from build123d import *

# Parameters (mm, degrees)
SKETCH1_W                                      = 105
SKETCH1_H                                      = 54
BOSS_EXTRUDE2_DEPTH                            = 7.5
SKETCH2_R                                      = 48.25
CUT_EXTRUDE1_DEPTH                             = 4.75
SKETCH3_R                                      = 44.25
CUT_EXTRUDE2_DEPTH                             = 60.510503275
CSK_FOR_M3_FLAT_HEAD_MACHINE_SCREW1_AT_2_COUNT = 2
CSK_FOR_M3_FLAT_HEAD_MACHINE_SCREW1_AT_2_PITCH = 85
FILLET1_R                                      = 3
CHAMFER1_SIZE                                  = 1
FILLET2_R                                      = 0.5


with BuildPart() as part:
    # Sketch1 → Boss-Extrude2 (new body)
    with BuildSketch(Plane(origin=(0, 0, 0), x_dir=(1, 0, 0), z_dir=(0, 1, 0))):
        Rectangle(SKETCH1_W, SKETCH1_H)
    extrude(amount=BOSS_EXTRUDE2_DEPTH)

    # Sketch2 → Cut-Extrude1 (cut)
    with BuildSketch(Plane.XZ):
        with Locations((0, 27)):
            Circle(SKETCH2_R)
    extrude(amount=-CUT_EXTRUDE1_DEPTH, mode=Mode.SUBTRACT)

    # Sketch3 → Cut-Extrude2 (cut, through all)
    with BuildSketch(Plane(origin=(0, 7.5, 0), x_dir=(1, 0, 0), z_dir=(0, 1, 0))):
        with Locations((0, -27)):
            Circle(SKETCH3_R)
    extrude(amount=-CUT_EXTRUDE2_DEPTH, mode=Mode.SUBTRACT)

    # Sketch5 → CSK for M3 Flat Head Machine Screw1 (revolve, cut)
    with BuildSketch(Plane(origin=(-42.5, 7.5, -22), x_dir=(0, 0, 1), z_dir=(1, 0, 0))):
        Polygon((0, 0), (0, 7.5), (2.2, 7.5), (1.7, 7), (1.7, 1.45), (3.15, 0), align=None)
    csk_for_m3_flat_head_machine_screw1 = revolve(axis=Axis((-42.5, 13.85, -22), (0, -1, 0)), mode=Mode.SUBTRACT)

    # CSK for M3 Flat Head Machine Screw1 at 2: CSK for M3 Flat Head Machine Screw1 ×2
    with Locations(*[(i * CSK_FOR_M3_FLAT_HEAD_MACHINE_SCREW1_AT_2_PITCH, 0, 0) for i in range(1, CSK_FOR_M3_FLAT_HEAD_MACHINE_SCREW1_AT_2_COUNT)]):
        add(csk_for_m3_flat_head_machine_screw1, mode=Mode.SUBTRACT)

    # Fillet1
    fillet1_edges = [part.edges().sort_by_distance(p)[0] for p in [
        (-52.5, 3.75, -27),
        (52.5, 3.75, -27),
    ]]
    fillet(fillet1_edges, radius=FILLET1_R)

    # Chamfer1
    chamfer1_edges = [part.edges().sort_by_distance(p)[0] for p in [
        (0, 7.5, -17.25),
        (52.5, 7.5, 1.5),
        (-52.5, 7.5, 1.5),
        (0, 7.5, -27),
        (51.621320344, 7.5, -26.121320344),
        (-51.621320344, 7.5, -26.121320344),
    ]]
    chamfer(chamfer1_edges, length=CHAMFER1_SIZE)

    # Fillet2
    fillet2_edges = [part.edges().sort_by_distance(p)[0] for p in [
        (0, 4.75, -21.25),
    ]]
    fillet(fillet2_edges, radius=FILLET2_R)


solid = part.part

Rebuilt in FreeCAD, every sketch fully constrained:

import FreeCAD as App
import Part
import Sketcher
Q = App.Units.Quantity


def edges_at(feature, points):
    """Names of the edges that pass closest to the given points."""
    edges = feature.Shape.Edges
    near = lambda p: min(range(len(edges)), key=lambda i: edges[i].distToShape(Part.Vertex(*p))[0])
    return sorted({f"Edge{near(p) + 1}" for p in points})

doc = App.newDocument("Part")
body = doc.addObject("PartDesign::Body", "Body")

sketch1 = body.newObject("Sketcher::SketchObject", "Sketch")
sketch1.AttachmentSupport = (doc.getObject("XZ_Plane"), [""])
sketch1.MapMode = "FlatFace"
sketch1.addGeometry(Part.LineSegment(App.Vector(-52, -27, 0), App.Vector(-52, 27, 0)), False)
sketch1.addGeometry(Part.LineSegment(App.Vector(-52, 27, 0), App.Vector(52, 27, 0)), False)
sketch1.addGeometry(Part.LineSegment(App.Vector(52, 27, 0), App.Vector(52, -27, 0)), False)
sketch1.addGeometry(Part.LineSegment(App.Vector(52, -27, 0), App.Vector(-52, -27, 0)), False)
sketch1.addConstraint(Sketcher.Constraint("Coincident", 0, 2, 1, 1))
sketch1.addConstraint(Sketcher.Constraint("Coincident", 1, 2, 2, 1))
sketch1.addConstraint(Sketcher.Constraint("Coincident", 2, 2, 3, 1))
sketch1.addConstraint(Sketcher.Constraint("Coincident", 3, 2, 0, 1))
sketch1.addConstraint(Sketcher.Constraint("Vertical", 0))
sketch1.addConstraint(Sketcher.Constraint("Horizontal", 1))
sketch1.addConstraint(Sketcher.Constraint("Vertical", 2))
sketch1.addConstraint(Sketcher.Constraint("Horizontal", 3))
sketch1.addConstraint(Sketcher.Constraint("Symmetric", 0, 2, 2, 2, -1, 1))
sketch1.addConstraint(Sketcher.Constraint("DistanceX", 1, 1, 1, 2, Q("105 mm")))
sketch1.addConstraint(Sketcher.Constraint("DistanceY", 0, 1, 0, 2, Q("54 mm")))
pad1 = body.newObject("PartDesign::Pad", "Pad")
pad1.Profile = sketch1
pad1.Length = 7.5
pad1.Reversed = True

sketch2 = body.newObject("Sketcher::SketchObject", "Sketch001")
sketch2.AttachmentSupport = (doc.getObject("XZ_Plane"), [""])
sketch2.MapMode = "FlatFace"
sketch2.addGeometry(Part.Circle(App.Vector(0, 27, 0), App.Vector(0, 0, 1), 48), False)
sketch2.addConstraint(Sketcher.Constraint("PointOnObject", 0, 3, -2))
sketch2.addConstraint(Sketcher.Constraint("Diameter", 0, Q("96.5 mm")))
sketch2.addConstraint(Sketcher.Constraint("DistanceY", -1, 1, 0, 3, Q("27 mm")))
pocket1 = body.newObject("PartDesign::Pocket", "Pocket")
pocket1.Profile = sketch2
pocket1.Length = 4.75

sketch3 = body.newObject("Sketcher::SketchObject", "Sketch002")
sketch3.AttachmentSupport = (doc.getObject("XZ_Plane"), [""])
sketch3.MapMode = "FlatFace"
sketch3.AttachmentOffset = App.Placement(App.Vector(0, 0, -7.5), App.Rotation())
sketch3.addGeometry(Part.Circle(App.Vector(0, 27, 0), App.Vector(0, 0, 1), 44), False)
sketch3.addConstraint(Sketcher.Constraint("PointOnObject", 0, 3, -2))
sketch3.addConstraint(Sketcher.Constraint("Diameter", 0, Q("88.5 mm")))
sketch3.addConstraint(Sketcher.Constraint("DistanceY", -1, 1, 0, 3, Q("27 mm")))
pocket2 = body.newObject("PartDesign::Pocket", "Pocket001")
pocket2.Profile = sketch3
pocket2.Type = "ThroughAll"
pocket2.Reversed = True

sketch4 = body.newObject("Sketcher::SketchObject", "Sketch003")
sketch4.AttachmentSupport = (doc.getObject("YZ_Plane"), [""])
sketch4.MapMode = "FlatFace"
sketch4.AttachmentOffset = App.Placement(App.Vector(0, 0, -42.5), App.Rotation())
sketch4.addGeometry(Part.LineSegment(App.Vector(0, -22, 0), App.Vector(7.5, -22, 0)), False)
sketch4.addGeometry(Part.LineSegment(App.Vector(7.5, -22, 0), App.Vector(7.5, -18.9, 0)), False)
sketch4.addGeometry(Part.LineSegment(App.Vector(7.5, -18.9, 0), App.Vector(6, -20.3, 0)), False)
sketch4.addGeometry(Part.LineSegment(App.Vector(6, -20.3, 0), App.Vector(0.5, -20.3, 0)), False)
sketch4.addGeometry(Part.LineSegment(App.Vector(0.5, -20.3, 0), App.Vector(0, -19.8, 0)), False)
sketch4.addGeometry(Part.LineSegment(App.Vector(0, -19.8, 0), App.Vector(0, -22, 0)), False)
sketch4.addGeometry(Part.LineSegment(App.Vector(7.5, -22, 0), App.Vector(0, -22, 0)), True)
sketch4.addConstraint(Sketcher.Constraint("Coincident", 0, 2, 1, 1))
sketch4.addConstraint(Sketcher.Constraint("Coincident", 1, 2, 2, 1))
sketch4.addConstraint(Sketcher.Constraint("Coincident", 2, 2, 3, 1))
sketch4.addConstraint(Sketcher.Constraint("Coincident", 3, 2, 4, 1))
sketch4.addConstraint(Sketcher.Constraint("Coincident", 4, 2, 5, 1))
sketch4.addConstraint(Sketcher.Constraint("Coincident", 5, 2, 0, 1))
sketch4.addConstraint(Sketcher.Constraint("Horizontal", 0))
sketch4.addConstraint(Sketcher.Constraint("Vertical", 1))
sketch4.addConstraint(Sketcher.Constraint("Horizontal", 3))
sketch4.addConstraint(Sketcher.Constraint("Vertical", 5))
sketch4.addConstraint(Sketcher.Constraint("Horizontal", 6))
sketch4.addConstraint(Sketcher.Constraint("Coincident", 6, 1, 0, 2))
sketch4.addConstraint(Sketcher.Constraint("PointOnObject", 4, 2, -2))
sketch4.addConstraint(Sketcher.Constraint("PointOnObject", 6, 2, -2))
sketch4.addConstraint(Sketcher.Constraint("Perpendicular", 2, 4))
sketch4.addConstraint(Sketcher.Constraint("Angle", 2, Q("-135 deg")))
sketch4.addConstraint(Sketcher.Constraint("DistanceX", 0, 1, 0, 2, Q("7.5 mm")))
sketch4.addConstraint(Sketcher.Constraint("DistanceY", 5, 2, 5, 1, Q("2.2 mm")))
sketch4.addConstraint(Sketcher.Constraint("DistanceY", 0, 2, -1, 1, Q("22 mm")))
sketch4.addConstraint(Sketcher.Constraint("DistanceX", 3, 2, 1, 2, Q("7 mm")))
sketch4.addConstraint(Sketcher.Constraint("DistanceX", 3, 2, 3, 1, Q("5.55 mm")))
groove = body.newObject("PartDesign::Groove", "Groove")
groove.Profile = sketch4
groove.ReferenceAxis = (sketch4, ["Axis0"])
groove.Angle = 360
doc.recompute()

linearpattern = body.newObject("PartDesign::LinearPattern", "LinearPattern")
linearpattern.Originals = [groove]
linearpattern.Direction = (doc.getObject("X_Axis"), [""])
linearpattern.Mode = "offset"
linearpattern.Offset = 85
linearpattern.Occurrences = 2
body.Tip = linearpattern
doc.recompute()

fillet = body.newObject("PartDesign::Fillet", "Fillet")
fillet.Base = (linearpattern, edges_at(linearpattern, [(-52.5, 3.75, -27), (52.5, 3.75, -27)]))
fillet.Radius = 3
doc.recompute()

chamfer = body.newObject("PartDesign::Chamfer", "Chamfer")
chamfer.Base = (fillet, edges_at(fillet, [
    (0, 7.5, -17.25),
    (52.5, 7.5, 1.5),
    (-52.5, 7.5, 1.5),
    (0, 7.5, -27),
    (51.621, 7.5, -26.121),
    (-51.621, 7.5, -26.121),
]))
chamfer.Size = 1
doc.recompute()

fillet2 = body.newObject("PartDesign::Fillet", "Fillet001")
fillet2.Base = (chamfer, edges_at(chamfer, [(0, 4.75, -21.25)]))
fillet2.Radius = 0.5

doc.recompute()
